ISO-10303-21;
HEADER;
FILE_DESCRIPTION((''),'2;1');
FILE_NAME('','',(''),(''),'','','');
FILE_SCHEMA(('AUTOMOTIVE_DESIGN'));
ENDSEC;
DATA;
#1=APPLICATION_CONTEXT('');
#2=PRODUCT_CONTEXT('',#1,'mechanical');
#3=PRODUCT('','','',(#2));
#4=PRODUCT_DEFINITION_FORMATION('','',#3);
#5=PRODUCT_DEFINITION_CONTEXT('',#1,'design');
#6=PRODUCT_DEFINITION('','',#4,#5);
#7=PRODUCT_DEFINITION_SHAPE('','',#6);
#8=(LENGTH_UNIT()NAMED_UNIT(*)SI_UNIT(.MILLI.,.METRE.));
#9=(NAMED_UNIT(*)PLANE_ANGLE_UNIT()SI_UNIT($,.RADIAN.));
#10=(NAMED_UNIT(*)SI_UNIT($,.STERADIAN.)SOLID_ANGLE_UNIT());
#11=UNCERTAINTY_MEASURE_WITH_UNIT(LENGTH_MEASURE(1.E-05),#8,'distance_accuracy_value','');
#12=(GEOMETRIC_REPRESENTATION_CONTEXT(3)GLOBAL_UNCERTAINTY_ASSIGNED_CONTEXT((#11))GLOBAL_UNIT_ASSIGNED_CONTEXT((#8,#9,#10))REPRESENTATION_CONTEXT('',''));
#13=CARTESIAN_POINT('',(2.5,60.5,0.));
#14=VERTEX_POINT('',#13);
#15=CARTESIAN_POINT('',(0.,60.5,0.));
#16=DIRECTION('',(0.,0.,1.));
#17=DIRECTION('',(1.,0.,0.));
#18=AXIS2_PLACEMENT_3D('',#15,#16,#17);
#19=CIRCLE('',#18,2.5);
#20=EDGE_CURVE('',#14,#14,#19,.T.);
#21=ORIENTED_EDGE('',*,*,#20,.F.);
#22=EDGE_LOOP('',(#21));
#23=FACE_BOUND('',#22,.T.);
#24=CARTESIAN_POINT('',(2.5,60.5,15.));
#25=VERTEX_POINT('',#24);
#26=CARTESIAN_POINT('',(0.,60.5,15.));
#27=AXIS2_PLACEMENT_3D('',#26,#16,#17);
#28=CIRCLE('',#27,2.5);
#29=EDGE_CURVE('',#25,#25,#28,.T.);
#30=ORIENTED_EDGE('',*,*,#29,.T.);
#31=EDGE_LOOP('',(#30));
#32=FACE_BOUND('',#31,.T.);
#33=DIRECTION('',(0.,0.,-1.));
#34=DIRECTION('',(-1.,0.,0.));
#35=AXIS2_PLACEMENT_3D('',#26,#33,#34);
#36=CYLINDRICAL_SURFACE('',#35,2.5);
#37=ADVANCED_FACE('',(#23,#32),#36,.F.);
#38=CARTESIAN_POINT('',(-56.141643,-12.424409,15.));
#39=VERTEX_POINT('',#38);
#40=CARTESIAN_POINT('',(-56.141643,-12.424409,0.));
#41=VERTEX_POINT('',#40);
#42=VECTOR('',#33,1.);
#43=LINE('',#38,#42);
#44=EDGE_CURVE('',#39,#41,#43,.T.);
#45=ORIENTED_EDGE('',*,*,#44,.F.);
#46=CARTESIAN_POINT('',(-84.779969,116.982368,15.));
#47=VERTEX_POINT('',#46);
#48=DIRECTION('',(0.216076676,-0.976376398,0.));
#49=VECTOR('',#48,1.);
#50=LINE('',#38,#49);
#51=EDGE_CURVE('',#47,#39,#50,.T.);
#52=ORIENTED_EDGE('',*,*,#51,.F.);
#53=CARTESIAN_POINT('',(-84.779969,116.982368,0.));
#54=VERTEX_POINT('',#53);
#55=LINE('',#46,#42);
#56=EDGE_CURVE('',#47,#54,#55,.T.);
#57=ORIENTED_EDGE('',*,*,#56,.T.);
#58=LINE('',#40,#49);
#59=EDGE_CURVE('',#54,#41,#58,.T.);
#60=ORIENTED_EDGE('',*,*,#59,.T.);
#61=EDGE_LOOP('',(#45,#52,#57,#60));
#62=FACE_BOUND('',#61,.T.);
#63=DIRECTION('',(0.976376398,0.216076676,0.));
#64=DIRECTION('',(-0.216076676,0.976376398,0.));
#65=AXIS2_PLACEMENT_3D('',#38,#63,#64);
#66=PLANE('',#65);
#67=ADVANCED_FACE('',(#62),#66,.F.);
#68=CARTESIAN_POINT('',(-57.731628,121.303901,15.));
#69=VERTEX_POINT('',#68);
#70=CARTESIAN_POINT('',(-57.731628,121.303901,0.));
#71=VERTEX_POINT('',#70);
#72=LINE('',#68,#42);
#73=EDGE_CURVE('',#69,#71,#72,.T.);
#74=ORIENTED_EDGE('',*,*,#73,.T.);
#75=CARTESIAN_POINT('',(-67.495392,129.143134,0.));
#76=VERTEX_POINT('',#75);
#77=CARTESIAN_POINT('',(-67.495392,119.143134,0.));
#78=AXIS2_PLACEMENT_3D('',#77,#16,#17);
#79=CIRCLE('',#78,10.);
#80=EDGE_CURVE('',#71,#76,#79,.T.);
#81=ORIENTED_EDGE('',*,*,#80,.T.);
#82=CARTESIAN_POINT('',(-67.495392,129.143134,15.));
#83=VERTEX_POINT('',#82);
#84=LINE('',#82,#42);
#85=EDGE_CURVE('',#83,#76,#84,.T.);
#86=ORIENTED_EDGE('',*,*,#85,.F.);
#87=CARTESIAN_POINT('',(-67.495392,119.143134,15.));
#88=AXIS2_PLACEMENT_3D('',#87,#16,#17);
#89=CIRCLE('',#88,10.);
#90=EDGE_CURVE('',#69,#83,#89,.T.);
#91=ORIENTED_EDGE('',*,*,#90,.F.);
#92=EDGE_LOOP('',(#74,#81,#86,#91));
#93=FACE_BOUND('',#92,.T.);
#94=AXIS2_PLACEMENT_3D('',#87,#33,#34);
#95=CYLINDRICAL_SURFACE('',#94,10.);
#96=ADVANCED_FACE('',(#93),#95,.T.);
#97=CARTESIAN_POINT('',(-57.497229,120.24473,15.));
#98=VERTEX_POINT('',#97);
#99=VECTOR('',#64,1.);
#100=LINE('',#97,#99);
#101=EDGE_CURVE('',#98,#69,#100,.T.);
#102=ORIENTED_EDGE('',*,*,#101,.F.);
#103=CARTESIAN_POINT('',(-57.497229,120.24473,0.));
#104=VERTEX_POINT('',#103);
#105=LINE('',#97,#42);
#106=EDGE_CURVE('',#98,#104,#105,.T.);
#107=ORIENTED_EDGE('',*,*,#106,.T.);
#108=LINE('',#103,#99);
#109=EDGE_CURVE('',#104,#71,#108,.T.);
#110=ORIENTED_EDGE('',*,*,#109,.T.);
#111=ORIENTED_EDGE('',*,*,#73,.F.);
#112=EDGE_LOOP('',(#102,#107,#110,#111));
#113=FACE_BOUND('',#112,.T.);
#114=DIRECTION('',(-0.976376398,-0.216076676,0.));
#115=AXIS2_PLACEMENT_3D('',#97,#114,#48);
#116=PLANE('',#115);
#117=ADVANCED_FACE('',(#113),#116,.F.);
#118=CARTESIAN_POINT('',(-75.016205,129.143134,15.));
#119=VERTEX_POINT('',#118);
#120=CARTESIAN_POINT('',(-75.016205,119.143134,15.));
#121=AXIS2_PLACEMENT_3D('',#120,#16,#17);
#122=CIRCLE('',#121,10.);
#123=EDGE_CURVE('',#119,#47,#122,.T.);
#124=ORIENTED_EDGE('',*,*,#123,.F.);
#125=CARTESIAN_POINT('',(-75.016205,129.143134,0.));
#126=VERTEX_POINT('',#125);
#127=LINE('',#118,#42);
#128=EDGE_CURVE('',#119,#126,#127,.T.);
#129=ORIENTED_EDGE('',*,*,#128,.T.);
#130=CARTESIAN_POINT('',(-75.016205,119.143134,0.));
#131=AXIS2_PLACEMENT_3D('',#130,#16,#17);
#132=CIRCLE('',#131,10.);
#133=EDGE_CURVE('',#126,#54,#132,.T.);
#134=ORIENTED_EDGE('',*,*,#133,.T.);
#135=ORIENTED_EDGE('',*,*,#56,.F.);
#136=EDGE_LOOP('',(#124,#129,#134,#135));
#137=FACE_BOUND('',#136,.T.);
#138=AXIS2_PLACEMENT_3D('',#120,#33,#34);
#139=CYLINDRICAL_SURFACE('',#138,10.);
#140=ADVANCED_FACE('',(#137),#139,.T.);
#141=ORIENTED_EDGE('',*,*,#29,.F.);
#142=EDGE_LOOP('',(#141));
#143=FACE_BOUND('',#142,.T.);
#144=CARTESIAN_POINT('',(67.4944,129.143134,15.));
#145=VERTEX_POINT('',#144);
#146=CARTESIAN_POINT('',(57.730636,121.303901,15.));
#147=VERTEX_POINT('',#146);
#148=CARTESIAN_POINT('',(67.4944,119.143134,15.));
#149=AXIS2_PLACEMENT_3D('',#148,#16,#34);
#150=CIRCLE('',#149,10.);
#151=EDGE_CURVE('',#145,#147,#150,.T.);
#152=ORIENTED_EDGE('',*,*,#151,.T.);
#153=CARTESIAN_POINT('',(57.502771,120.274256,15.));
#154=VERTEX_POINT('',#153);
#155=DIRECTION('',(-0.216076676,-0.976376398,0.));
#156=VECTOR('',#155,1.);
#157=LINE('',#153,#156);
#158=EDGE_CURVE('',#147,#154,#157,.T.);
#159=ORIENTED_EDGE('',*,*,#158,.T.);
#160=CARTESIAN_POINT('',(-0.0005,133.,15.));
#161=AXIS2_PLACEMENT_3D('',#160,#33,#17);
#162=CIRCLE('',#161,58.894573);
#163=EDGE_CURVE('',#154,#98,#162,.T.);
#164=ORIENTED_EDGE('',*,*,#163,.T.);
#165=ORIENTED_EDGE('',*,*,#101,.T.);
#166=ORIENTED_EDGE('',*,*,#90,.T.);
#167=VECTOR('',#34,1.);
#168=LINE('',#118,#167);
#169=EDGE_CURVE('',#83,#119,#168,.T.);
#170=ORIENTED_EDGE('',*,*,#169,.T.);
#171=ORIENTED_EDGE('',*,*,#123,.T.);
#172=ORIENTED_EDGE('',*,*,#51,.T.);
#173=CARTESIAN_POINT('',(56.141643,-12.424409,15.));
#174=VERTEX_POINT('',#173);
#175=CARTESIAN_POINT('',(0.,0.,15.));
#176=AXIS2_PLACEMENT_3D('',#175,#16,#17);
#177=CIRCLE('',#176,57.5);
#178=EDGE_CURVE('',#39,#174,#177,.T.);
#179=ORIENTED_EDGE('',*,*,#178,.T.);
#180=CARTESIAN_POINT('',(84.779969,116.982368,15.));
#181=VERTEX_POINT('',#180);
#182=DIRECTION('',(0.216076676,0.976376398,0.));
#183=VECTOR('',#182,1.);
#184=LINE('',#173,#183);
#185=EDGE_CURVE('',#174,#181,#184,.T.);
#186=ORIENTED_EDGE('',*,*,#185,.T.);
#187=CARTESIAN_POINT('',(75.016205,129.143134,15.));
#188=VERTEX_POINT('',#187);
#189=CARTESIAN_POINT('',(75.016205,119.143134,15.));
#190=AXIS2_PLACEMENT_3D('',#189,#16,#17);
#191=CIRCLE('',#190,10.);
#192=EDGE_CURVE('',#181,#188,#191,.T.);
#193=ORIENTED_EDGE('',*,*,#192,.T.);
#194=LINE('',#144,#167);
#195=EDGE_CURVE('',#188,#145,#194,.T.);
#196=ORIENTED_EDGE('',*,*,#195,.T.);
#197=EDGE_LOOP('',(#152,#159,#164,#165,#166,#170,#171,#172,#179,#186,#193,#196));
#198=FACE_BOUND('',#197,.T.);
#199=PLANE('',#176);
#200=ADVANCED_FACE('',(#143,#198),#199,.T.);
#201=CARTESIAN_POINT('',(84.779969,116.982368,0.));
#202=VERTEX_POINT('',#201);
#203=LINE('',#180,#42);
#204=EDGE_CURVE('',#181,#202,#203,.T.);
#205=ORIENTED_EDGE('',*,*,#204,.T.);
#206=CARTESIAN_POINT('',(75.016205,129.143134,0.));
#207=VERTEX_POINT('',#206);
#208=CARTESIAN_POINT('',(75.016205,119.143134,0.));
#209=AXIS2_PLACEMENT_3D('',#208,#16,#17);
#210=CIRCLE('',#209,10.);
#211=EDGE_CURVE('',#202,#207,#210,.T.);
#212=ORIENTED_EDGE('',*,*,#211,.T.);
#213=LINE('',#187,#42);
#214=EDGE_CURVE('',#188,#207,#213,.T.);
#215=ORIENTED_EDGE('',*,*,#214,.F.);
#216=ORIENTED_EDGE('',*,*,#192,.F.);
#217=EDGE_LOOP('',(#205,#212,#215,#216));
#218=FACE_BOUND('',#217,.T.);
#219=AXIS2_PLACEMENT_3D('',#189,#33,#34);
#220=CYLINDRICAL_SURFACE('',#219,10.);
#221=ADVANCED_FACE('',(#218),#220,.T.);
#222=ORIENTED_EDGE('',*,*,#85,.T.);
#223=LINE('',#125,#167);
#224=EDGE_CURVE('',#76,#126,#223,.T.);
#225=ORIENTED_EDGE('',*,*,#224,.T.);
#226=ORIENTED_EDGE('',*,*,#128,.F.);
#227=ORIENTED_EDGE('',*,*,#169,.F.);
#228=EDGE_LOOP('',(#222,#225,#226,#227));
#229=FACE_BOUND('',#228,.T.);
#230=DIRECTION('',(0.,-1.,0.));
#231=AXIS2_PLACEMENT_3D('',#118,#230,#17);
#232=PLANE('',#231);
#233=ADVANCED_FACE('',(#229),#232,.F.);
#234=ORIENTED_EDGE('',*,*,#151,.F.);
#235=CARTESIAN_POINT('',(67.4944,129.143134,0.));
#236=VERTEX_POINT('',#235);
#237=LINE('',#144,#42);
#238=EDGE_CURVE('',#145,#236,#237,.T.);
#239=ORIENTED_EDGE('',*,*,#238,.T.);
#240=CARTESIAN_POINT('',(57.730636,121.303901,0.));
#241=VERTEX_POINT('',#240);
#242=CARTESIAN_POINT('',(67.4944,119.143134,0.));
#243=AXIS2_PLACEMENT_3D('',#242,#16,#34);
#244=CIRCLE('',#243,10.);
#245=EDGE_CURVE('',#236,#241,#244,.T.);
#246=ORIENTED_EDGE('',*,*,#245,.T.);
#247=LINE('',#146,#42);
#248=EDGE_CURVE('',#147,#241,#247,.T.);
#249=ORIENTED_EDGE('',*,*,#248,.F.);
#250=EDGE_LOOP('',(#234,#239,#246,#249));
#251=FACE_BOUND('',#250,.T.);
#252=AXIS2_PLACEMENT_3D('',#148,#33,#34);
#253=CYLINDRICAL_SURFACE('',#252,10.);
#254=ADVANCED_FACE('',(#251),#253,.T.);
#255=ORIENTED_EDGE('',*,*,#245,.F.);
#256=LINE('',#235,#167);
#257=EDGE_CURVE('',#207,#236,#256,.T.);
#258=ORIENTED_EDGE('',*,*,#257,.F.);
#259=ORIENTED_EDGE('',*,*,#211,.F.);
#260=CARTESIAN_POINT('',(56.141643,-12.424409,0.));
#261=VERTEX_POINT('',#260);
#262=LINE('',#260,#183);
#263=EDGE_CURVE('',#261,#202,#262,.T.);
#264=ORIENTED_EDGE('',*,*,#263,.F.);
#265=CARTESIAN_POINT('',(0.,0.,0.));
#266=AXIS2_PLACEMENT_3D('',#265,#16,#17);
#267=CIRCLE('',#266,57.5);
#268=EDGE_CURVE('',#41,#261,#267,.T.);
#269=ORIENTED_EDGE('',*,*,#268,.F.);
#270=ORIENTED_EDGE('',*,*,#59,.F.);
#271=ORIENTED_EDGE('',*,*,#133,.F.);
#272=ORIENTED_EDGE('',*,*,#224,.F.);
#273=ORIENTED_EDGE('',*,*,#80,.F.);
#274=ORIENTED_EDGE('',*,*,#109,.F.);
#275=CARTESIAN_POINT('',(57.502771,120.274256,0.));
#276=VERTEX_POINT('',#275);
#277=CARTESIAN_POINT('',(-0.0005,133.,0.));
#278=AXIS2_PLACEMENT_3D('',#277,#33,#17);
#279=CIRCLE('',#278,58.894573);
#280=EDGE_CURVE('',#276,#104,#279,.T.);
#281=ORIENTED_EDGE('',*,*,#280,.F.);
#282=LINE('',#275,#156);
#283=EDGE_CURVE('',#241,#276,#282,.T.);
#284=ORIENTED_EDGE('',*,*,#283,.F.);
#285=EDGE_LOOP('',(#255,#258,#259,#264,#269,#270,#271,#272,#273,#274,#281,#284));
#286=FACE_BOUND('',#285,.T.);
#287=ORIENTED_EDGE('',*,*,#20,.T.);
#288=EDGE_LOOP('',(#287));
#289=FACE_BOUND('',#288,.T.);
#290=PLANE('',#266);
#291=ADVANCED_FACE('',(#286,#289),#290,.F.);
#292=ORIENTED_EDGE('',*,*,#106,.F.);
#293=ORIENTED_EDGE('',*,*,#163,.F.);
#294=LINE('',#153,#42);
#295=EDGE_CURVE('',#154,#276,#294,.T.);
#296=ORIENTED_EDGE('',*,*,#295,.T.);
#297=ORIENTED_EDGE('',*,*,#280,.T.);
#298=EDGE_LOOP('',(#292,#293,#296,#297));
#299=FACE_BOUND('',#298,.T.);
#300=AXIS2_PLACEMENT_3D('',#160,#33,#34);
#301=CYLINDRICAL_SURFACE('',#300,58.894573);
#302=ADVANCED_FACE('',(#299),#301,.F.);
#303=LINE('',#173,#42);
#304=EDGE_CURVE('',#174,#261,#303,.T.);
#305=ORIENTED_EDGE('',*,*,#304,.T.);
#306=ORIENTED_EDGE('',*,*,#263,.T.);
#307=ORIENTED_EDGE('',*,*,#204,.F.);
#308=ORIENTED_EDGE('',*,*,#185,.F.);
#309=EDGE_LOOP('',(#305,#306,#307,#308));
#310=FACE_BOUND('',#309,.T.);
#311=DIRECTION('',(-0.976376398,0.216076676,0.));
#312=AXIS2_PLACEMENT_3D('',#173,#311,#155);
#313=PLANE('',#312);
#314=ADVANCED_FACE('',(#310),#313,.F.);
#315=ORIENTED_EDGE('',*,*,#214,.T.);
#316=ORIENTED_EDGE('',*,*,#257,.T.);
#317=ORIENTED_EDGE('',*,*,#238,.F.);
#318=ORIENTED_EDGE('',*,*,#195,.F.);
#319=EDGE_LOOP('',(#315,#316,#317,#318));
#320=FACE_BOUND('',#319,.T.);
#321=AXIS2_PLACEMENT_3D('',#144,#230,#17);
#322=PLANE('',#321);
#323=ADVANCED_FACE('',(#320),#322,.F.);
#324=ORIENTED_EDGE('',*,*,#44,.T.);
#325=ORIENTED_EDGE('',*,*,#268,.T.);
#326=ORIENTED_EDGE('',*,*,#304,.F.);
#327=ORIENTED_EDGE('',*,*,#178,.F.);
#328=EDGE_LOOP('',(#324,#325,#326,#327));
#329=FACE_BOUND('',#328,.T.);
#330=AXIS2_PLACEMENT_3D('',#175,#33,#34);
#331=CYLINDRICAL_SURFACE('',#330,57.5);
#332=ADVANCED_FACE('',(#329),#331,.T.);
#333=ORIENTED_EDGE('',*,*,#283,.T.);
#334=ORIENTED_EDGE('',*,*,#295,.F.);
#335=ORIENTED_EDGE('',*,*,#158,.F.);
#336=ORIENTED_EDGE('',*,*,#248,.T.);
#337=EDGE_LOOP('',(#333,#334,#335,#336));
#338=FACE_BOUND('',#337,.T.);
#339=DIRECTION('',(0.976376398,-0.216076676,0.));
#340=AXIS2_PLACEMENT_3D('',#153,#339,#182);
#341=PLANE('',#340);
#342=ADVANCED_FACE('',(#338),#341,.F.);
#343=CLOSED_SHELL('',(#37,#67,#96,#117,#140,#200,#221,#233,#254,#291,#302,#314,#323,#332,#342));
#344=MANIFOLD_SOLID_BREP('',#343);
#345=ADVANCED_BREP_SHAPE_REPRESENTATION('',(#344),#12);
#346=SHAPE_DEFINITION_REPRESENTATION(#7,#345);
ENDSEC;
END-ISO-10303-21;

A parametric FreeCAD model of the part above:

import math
import FreeCAD as App
import Part
import Sketcher
from FreeCAD import Vector

doc = App.newDocument("Part")
body = doc.addObject("PartDesign::Body", "Body")

# Sketch on XY plane
sketch1 = body.newObject("Sketcher::SketchObject", "Sketch")
sketch1.AttachmentSupport = (doc.getObject("XY_Plane"), [""])
sketch1.MapMode = "FlatFace"
sketch1.addGeometry([
    Part.LineSegment(Vector(56.141643, -12.424409, 0), Vector(84.779969, 116.982368, 0)),  # 0
    Part.ArcOfCircle(Part.Circle(Vector(75.016205, 119.143134, 0), Vector(0, 0, 1), 10), math.radians(-12.478701), math.radians(90)),  # 1
    Part.LineSegment(Vector(75.016205, 129.143134, 0), Vector(67.4944, 129.143134, 0)),  # 2
    Part.ArcOfCircle(Part.Circle(Vector(67.4944, 119.143134, 0), Vector(0, 0, 1), 10), math.radians(90), math.radians(167.521299)),  # 3
    Part.LineSegment(Vector(57.730636, 121.303901, 0), Vector(57.502771, 120.274256, 0)),  # 4
    Part.ArcOfCircle(Part.Circle(Vector(-0.0005, 133, 0), Vector(0, 0, 1), 58.894573), math.radians(-167.491878), math.radians(-12.478701)),  # 5
    Part.LineSegment(Vector(-57.497229, 120.24473, 0), Vector(-57.731628, 121.303901, 0)),  # 6
    Part.ArcOfCircle(Part.Circle(Vector(-67.495392, 119.143134, 0), Vector(0, 0, 1), 10), math.radians(12.478701), math.radians(90)),  # 7
    Part.LineSegment(Vector(-67.495392, 129.143134, 0), Vector(-75.016205, 129.143134, 0)),  # 8
    Part.ArcOfCircle(Part.Circle(Vector(-75.016205, 119.143134, 0), Vector(0, 0, 1), 10), math.radians(90), math.radians(192.478701)),  # 9
    Part.LineSegment(Vector(-84.779969, 116.982368, 0), Vector(-56.141643, -12.424409, 0)),  # 10
    Part.ArcOfCircle(Part.Circle(Vector(0, 0, 0), Vector(0, 0, 1), 57.5), math.radians(-167.521299), math.radians(-12.478701)),  # 11
    Part.Circle(Vector(0, 60.5, 0), Vector(0, 0, 1), 2.5),  # 12
], False)
sketch1.addConstraint([
    Sketcher.Constraint("Coincident", 0, 2, 1, 1),
    Sketcher.Constraint("Coincident", 1, 2, 2, 1),
    Sketcher.Constraint("Coincident", 2, 2, 3, 1),
    Sketcher.Constraint("Coincident", 3, 2, 4, 1),
    Sketcher.Constraint("Coincident", 4, 2, 5, 2),
    Sketcher.Constraint("Coincident", 5, 1, 6, 1),
    Sketcher.Constraint("Coincident", 6, 2, 7, 1),
    Sketcher.Constraint("Coincident", 7, 2, 8, 1),
    Sketcher.Constraint("Coincident", 8, 2, 9, 1),
    Sketcher.Constraint("Coincident", 9, 2, 10, 1),
    Sketcher.Constraint("Coincident", 10, 2, 11, 1),
    Sketcher.Constraint("Coincident", 11, 2, 0, 1),
    Sketcher.Constraint("Horizontal", 2),
    Sketcher.Constraint("Horizontal", 8),
    Sketcher.Constraint("Coincident", 11, 3, -1, 1),
    Sketcher.Constraint("PointOnObject", 12, 3, -2),
    Sketcher.Constraint("Diameter", 12, 5.0),
    Sketcher.Constraint("Radius", 1, 10.0),
    Sketcher.Constraint("Radius", 3, 10.0),
    Sketcher.Constraint("Radius", 7, 10.0),
    Sketcher.Constraint("Radius", 9, 10.0),
    Sketcher.Constraint("Radius", 11, 57.5),
    Sketcher.Constraint("DistanceY", -1, 1, 5, 3, 133.0),
    Sketcher.Constraint("DistanceX", 5, 1, 4, 2, 115.0),
    Sketcher.Constraint("DistanceY", -1, 1, 12, 3, 60.5),
    Sketcher.Constraint("Radius", 5, 58.894573),
    Sketcher.Constraint("DistanceX", -1, 1, 3, 3, 67.4944),
    Sketcher.Constraint("DistanceX", 5, 3, -1, 1, 0.0005),
    Sketcher.Constraint("DistanceX", -1, 1, 2, 2, 67.4944),
    Sketcher.Constraint("DistanceY", -1, 1, 3, 2, 121.303901),
    Sketcher.Constraint("DistanceY", -1, 1, 6, 2, 121.303901),
    Sketcher.Constraint("DistanceX", 6, 2, 5, 1, 0.234399),
    Sketcher.Constraint("DistanceX", 2, 2, 2, 1, 7.521805),
    Sketcher.Constraint("DistanceX", 8, 2, 8, 1, 7.520813),
    Sketcher.Constraint("DistanceX", -1, 1, 0, 2, 84.779969),
    Sketcher.Constraint("DistanceX", -1, 1, 4, 2, 57.502771),
    Sketcher.Constraint("DistanceX", 9, 2, -1, 1, 84.779969),
    Sketcher.Constraint("DistanceY", 10, 2, -1, 1, 12.424409),
    Sketcher.Constraint("DistanceY", 11, 2, -1, 1, 12.424409),
    Sketcher.Constraint("DistanceX", 9, 3, 1, 3, 150.032411),
    Sketcher.Constraint("DistanceX", 3, 2, 1, 3, 17.285569),
    Sketcher.Constraint("DistanceX", 3, 2, 1, 2, 17.285569),
    Sketcher.Constraint("DistanceX", 7, 3, 10, 2, 11.353749),
    Sketcher.Constraint("DistanceX", 7, 2, -1, 1, 67.495392),
])
pad1 = body.newObject("PartDesign::Pad", "Pad")
pad1.Profile = sketch1
pad1.Length = 15

doc.recompute()
